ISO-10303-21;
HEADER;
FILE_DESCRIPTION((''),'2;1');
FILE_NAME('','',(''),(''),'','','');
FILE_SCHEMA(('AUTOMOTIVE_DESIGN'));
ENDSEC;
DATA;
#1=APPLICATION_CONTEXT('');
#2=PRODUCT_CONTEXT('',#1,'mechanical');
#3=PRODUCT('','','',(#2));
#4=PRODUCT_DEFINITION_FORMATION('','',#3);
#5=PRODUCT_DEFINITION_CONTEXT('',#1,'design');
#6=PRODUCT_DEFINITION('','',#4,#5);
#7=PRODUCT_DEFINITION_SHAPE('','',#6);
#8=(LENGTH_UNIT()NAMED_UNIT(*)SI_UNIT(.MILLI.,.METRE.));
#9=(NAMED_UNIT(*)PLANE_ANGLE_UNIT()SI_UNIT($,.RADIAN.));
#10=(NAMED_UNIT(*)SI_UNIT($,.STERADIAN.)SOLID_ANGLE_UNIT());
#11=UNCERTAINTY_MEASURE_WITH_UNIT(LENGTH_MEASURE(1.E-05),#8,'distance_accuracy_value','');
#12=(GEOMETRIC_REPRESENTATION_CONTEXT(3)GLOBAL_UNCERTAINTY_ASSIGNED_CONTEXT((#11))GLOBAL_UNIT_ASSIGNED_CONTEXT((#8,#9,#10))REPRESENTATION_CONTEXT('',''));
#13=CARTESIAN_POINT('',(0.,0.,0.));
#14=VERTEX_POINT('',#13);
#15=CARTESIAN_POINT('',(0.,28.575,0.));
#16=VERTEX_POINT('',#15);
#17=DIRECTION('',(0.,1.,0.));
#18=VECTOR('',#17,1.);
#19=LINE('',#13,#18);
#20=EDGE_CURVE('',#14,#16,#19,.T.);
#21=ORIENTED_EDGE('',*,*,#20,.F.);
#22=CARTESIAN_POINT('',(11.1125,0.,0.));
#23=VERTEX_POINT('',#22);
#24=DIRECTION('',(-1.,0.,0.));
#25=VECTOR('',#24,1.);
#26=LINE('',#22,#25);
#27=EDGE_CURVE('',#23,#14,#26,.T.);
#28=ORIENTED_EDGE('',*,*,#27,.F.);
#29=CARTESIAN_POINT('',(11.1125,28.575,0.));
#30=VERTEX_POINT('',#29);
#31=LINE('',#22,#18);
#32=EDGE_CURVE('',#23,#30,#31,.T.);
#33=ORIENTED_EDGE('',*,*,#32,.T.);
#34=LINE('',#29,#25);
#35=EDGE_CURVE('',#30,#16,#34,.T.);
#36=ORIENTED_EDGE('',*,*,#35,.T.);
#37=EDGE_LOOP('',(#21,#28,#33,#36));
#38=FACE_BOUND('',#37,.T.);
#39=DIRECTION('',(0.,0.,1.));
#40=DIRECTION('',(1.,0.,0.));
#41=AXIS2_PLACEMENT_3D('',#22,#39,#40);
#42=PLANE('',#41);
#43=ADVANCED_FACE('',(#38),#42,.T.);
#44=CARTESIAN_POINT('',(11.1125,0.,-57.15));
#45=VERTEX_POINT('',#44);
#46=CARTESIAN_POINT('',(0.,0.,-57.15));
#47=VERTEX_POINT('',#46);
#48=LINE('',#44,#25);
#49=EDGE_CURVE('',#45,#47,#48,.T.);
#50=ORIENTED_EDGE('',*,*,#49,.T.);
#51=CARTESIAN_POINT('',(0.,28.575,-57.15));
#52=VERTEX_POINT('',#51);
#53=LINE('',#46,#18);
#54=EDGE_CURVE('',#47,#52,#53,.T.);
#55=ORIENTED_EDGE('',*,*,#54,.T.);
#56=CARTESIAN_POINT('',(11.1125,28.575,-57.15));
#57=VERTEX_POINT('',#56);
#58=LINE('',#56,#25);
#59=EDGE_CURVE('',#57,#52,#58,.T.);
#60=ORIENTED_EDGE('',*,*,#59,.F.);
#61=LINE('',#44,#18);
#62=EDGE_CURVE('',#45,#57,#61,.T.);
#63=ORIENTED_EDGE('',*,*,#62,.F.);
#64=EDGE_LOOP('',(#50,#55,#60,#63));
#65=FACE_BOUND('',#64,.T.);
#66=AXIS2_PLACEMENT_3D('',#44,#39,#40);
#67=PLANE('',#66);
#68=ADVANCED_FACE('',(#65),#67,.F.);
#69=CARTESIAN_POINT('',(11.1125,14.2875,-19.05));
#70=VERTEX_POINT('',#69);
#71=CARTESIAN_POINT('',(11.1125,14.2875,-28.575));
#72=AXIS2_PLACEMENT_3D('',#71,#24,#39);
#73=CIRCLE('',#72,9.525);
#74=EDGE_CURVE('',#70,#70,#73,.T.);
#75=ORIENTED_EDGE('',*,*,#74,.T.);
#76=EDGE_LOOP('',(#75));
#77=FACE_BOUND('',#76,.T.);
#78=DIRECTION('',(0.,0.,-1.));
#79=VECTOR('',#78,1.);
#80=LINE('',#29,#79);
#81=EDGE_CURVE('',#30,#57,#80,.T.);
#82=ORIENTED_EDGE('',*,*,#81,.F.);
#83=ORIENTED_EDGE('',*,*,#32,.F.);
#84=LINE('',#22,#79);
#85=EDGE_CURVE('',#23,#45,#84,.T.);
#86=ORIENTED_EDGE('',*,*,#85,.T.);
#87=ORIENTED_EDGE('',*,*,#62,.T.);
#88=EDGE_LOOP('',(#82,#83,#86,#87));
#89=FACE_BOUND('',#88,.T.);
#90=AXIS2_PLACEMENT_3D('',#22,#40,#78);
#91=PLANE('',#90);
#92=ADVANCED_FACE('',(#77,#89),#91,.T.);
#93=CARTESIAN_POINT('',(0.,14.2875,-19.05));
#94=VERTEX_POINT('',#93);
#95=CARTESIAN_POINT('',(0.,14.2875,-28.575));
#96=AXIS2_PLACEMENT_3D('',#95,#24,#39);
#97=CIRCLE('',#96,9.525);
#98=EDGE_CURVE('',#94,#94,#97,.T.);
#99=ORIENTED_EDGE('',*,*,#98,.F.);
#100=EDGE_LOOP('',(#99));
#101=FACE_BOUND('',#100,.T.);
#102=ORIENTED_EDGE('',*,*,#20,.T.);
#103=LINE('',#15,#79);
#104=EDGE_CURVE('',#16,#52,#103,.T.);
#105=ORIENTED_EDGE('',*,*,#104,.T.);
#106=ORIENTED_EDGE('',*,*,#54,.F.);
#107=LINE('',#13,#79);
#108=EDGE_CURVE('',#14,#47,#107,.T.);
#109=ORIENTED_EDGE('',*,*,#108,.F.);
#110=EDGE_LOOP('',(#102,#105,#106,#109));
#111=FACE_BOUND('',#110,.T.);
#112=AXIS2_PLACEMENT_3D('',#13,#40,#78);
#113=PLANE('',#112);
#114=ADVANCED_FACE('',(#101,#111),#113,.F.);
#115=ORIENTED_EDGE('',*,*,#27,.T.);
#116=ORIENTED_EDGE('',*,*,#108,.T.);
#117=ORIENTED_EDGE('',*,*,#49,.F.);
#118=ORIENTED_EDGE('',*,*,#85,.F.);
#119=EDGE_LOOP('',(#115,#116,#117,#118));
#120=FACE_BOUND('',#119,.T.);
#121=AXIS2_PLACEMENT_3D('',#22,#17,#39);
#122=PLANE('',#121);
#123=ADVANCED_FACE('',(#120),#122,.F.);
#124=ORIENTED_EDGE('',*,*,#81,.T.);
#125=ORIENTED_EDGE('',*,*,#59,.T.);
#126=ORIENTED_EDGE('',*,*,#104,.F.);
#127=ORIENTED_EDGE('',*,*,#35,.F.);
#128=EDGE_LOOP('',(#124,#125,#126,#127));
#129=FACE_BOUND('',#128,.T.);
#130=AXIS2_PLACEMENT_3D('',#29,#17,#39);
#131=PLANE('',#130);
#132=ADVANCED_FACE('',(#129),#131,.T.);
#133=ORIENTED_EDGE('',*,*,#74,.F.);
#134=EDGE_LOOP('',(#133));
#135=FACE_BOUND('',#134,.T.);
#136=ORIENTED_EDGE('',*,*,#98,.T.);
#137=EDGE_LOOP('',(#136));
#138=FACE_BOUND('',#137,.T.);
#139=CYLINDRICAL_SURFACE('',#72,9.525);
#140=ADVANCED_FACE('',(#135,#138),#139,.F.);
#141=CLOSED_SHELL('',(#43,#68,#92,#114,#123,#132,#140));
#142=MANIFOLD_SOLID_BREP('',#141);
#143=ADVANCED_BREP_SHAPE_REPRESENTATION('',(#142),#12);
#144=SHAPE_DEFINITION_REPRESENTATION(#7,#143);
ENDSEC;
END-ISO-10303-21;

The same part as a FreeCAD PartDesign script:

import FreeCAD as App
import Part
import Sketcher

V = App.Vector
Q = App.Units.Quantity

doc = App.newDocument("Part")
body = doc.addObject("PartDesign::Body", "Body")

sketch1 = doc.addObject("Sketcher::SketchObject", "Sketch")
body.addObject(sketch1)
sketch1.AttachmentSupport = (doc.YZ_Plane, [""])
sketch1.MapMode = "FlatFace"
sketch1.addGeometry(Part.LineSegment(V(28.575, 0, 0), V(0, 0, 0)), False)
sketch1.addGeometry(Part.LineSegment(V(0, 0, 0), V(0, -57.15, 0)), False)
sketch1.addGeometry(Part.LineSegment(V(0, -57.15, 0), V(28.575, -57.15, 0)), False)
sketch1.addGeometry(Part.LineSegment(V(28.575, -57.15, 0), V(28.575, 0, 0)), False)
sketch1.addConstraint(Sketcher.Constraint("Coincident", 0, 2, 1, 1))
sketch1.addConstraint(Sketcher.Constraint("Coincident", 1, 2, 2, 1))
sketch1.addConstraint(Sketcher.Constraint("Coincident", 2, 2, 3, 1))
sketch1.addConstraint(Sketcher.Constraint("Coincident", 3, 2, 0, 1))
sketch1.addConstraint(Sketcher.Constraint("Horizontal", 0))
sketch1.addConstraint(Sketcher.Constraint("Vertical", 1))
sketch1.addConstraint(Sketcher.Constraint("Horizontal", 2))
sketch1.addConstraint(Sketcher.Constraint("Vertical", 3))
sketch1.addConstraint(Sketcher.Constraint("Coincident", 0, 2, -1, 1))
sketch1.addConstraint(Sketcher.Constraint("DistanceY", 1, 2, 1, 1, Q("2.25 in")))
sketch1.addConstraint(Sketcher.Constraint("DistanceX", 0, 2, 0, 1, Q("1.125 in")))
pad1 = doc.addObject("PartDesign::Pad", "Pad")
body.addObject(pad1)
pad1.Profile = sketch1
pad1.Length = Q("0.4375 in")

sketch2 = doc.addObject("Sketcher::SketchObject", "Sketch001")
body.addObject(sketch2)
sketch2.AttachmentSupport = (doc.YZ_Plane, [""])
sketch2.MapMode = "FlatFace"
sketch2.addGeometry(Part.Circle(V(14.2875, -28.575, 0), V(0, 0, 1), 9.525), False)
sketch2.addConstraint(Sketcher.Constraint("Diameter", 0, Q("0.75 in")))
sketch2.addConstraint(Sketcher.Constraint("DistanceX", -1, 1, 0, 3, Q("0.5625 in")))
sketch2.addConstraint(Sketcher.Constraint("DistanceY", 0, 3, -1, 1, Q("1.125 in")))
pocket1 = doc.addObject("PartDesign::Pocket", "Pocket")
body.addObject(pocket1)
pocket1.Profile = sketch2
pocket1.Type = "ThroughAll"
pocket1.Reversed = True

doc.recompute()
